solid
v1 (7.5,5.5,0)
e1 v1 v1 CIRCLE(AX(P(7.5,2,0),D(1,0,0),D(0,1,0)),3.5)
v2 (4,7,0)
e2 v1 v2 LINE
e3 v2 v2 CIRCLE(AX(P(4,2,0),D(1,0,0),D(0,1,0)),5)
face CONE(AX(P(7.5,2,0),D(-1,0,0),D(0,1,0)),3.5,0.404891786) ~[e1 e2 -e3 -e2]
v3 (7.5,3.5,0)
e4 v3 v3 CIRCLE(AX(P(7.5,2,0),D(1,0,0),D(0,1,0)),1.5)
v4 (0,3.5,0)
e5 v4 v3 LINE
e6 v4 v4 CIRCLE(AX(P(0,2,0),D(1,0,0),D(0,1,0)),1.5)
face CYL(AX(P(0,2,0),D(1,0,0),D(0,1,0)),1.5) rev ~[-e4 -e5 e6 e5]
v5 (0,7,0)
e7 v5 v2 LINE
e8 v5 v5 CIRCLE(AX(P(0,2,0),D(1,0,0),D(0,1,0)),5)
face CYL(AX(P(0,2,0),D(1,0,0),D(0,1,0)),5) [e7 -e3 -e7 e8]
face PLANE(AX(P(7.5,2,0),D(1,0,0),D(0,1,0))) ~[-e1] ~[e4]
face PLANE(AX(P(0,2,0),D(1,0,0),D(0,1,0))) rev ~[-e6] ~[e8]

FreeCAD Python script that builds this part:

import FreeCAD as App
import Part
import Sketcher


def add_polygon(sketch, points):
    """Adds a closed chain of lines whose ends are joined by coincident constraints."""
    first, n = sketch.GeometryCount, len(points)
    for a, b in zip(points, points[1:] + points[:1]):
        sketch.addGeometry(Part.LineSegment(App.Vector(*a, 0), App.Vector(*b, 0)), False)
    for i in range(n):
        sketch.addConstraint(Sketcher.Constraint("Coincident", first + i, 2, first + (i + 1) % n, 1))

doc = App.newDocument("Part")
body = doc.addObject("PartDesign::Body", "Body")

# Sketch on XY plane
sketch1 = doc.addObject("Sketcher::SketchObject", "Sketch")
body.addObject(sketch1)
sketch1.AttachmentSupport = (doc.XY_Plane, [""])
sketch1.MapMode = "FlatFace"
add_polygon(sketch1, [(4, 7), (0, 7), (0, 3.5), (7.5, 3.5), (7.5, 5.5)])  # lines 0-4
sketch1.addGeometry(Part.LineSegment(App.Vector(0, 2, 0), App.Vector(7.5, 2, 0)), True)  # axis
sketch1.addConstraint([
    Sketcher.Constraint("Horizontal", 0),
    Sketcher.Constraint("Vertical", 1),
    Sketcher.Constraint("Horizontal", 2),
    Sketcher.Constraint("Vertical", 3),
    Sketcher.Constraint("Horizontal", 5),
    Sketcher.Constraint("PointOnObject", 0, 2, -2),
    Sketcher.Constraint("PointOnObject", 5, 1, -2),
    Sketcher.Constraint("Vertical", 3, 2, 5, 2),
    Sketcher.Constraint("DistanceX", 0, 2, 0, 1, 4.0),
    Sketcher.Constraint("DistanceY", 3, 1, 3, 2, 2.0),
    Sketcher.Constraint("DistanceY", -1, 1, 0, 2, 7.0),
    Sketcher.Constraint("DistanceY", -1, 1, 5, 1, 2.0),
    Sketcher.Constraint("DistanceX", 2, 1, 2, 2, 7.5),
    Sketcher.Constraint("DistanceY", 1, 2, 1, 1, 3.5),
])
revolution = doc.addObject("PartDesign::Revolution", "Revolution")
body.addObject(revolution)
revolution.Profile = sketch1
revolution.ReferenceAxis = (sketch1, ["Axis0"])
revolution.Angle = 360

doc.recompute()
